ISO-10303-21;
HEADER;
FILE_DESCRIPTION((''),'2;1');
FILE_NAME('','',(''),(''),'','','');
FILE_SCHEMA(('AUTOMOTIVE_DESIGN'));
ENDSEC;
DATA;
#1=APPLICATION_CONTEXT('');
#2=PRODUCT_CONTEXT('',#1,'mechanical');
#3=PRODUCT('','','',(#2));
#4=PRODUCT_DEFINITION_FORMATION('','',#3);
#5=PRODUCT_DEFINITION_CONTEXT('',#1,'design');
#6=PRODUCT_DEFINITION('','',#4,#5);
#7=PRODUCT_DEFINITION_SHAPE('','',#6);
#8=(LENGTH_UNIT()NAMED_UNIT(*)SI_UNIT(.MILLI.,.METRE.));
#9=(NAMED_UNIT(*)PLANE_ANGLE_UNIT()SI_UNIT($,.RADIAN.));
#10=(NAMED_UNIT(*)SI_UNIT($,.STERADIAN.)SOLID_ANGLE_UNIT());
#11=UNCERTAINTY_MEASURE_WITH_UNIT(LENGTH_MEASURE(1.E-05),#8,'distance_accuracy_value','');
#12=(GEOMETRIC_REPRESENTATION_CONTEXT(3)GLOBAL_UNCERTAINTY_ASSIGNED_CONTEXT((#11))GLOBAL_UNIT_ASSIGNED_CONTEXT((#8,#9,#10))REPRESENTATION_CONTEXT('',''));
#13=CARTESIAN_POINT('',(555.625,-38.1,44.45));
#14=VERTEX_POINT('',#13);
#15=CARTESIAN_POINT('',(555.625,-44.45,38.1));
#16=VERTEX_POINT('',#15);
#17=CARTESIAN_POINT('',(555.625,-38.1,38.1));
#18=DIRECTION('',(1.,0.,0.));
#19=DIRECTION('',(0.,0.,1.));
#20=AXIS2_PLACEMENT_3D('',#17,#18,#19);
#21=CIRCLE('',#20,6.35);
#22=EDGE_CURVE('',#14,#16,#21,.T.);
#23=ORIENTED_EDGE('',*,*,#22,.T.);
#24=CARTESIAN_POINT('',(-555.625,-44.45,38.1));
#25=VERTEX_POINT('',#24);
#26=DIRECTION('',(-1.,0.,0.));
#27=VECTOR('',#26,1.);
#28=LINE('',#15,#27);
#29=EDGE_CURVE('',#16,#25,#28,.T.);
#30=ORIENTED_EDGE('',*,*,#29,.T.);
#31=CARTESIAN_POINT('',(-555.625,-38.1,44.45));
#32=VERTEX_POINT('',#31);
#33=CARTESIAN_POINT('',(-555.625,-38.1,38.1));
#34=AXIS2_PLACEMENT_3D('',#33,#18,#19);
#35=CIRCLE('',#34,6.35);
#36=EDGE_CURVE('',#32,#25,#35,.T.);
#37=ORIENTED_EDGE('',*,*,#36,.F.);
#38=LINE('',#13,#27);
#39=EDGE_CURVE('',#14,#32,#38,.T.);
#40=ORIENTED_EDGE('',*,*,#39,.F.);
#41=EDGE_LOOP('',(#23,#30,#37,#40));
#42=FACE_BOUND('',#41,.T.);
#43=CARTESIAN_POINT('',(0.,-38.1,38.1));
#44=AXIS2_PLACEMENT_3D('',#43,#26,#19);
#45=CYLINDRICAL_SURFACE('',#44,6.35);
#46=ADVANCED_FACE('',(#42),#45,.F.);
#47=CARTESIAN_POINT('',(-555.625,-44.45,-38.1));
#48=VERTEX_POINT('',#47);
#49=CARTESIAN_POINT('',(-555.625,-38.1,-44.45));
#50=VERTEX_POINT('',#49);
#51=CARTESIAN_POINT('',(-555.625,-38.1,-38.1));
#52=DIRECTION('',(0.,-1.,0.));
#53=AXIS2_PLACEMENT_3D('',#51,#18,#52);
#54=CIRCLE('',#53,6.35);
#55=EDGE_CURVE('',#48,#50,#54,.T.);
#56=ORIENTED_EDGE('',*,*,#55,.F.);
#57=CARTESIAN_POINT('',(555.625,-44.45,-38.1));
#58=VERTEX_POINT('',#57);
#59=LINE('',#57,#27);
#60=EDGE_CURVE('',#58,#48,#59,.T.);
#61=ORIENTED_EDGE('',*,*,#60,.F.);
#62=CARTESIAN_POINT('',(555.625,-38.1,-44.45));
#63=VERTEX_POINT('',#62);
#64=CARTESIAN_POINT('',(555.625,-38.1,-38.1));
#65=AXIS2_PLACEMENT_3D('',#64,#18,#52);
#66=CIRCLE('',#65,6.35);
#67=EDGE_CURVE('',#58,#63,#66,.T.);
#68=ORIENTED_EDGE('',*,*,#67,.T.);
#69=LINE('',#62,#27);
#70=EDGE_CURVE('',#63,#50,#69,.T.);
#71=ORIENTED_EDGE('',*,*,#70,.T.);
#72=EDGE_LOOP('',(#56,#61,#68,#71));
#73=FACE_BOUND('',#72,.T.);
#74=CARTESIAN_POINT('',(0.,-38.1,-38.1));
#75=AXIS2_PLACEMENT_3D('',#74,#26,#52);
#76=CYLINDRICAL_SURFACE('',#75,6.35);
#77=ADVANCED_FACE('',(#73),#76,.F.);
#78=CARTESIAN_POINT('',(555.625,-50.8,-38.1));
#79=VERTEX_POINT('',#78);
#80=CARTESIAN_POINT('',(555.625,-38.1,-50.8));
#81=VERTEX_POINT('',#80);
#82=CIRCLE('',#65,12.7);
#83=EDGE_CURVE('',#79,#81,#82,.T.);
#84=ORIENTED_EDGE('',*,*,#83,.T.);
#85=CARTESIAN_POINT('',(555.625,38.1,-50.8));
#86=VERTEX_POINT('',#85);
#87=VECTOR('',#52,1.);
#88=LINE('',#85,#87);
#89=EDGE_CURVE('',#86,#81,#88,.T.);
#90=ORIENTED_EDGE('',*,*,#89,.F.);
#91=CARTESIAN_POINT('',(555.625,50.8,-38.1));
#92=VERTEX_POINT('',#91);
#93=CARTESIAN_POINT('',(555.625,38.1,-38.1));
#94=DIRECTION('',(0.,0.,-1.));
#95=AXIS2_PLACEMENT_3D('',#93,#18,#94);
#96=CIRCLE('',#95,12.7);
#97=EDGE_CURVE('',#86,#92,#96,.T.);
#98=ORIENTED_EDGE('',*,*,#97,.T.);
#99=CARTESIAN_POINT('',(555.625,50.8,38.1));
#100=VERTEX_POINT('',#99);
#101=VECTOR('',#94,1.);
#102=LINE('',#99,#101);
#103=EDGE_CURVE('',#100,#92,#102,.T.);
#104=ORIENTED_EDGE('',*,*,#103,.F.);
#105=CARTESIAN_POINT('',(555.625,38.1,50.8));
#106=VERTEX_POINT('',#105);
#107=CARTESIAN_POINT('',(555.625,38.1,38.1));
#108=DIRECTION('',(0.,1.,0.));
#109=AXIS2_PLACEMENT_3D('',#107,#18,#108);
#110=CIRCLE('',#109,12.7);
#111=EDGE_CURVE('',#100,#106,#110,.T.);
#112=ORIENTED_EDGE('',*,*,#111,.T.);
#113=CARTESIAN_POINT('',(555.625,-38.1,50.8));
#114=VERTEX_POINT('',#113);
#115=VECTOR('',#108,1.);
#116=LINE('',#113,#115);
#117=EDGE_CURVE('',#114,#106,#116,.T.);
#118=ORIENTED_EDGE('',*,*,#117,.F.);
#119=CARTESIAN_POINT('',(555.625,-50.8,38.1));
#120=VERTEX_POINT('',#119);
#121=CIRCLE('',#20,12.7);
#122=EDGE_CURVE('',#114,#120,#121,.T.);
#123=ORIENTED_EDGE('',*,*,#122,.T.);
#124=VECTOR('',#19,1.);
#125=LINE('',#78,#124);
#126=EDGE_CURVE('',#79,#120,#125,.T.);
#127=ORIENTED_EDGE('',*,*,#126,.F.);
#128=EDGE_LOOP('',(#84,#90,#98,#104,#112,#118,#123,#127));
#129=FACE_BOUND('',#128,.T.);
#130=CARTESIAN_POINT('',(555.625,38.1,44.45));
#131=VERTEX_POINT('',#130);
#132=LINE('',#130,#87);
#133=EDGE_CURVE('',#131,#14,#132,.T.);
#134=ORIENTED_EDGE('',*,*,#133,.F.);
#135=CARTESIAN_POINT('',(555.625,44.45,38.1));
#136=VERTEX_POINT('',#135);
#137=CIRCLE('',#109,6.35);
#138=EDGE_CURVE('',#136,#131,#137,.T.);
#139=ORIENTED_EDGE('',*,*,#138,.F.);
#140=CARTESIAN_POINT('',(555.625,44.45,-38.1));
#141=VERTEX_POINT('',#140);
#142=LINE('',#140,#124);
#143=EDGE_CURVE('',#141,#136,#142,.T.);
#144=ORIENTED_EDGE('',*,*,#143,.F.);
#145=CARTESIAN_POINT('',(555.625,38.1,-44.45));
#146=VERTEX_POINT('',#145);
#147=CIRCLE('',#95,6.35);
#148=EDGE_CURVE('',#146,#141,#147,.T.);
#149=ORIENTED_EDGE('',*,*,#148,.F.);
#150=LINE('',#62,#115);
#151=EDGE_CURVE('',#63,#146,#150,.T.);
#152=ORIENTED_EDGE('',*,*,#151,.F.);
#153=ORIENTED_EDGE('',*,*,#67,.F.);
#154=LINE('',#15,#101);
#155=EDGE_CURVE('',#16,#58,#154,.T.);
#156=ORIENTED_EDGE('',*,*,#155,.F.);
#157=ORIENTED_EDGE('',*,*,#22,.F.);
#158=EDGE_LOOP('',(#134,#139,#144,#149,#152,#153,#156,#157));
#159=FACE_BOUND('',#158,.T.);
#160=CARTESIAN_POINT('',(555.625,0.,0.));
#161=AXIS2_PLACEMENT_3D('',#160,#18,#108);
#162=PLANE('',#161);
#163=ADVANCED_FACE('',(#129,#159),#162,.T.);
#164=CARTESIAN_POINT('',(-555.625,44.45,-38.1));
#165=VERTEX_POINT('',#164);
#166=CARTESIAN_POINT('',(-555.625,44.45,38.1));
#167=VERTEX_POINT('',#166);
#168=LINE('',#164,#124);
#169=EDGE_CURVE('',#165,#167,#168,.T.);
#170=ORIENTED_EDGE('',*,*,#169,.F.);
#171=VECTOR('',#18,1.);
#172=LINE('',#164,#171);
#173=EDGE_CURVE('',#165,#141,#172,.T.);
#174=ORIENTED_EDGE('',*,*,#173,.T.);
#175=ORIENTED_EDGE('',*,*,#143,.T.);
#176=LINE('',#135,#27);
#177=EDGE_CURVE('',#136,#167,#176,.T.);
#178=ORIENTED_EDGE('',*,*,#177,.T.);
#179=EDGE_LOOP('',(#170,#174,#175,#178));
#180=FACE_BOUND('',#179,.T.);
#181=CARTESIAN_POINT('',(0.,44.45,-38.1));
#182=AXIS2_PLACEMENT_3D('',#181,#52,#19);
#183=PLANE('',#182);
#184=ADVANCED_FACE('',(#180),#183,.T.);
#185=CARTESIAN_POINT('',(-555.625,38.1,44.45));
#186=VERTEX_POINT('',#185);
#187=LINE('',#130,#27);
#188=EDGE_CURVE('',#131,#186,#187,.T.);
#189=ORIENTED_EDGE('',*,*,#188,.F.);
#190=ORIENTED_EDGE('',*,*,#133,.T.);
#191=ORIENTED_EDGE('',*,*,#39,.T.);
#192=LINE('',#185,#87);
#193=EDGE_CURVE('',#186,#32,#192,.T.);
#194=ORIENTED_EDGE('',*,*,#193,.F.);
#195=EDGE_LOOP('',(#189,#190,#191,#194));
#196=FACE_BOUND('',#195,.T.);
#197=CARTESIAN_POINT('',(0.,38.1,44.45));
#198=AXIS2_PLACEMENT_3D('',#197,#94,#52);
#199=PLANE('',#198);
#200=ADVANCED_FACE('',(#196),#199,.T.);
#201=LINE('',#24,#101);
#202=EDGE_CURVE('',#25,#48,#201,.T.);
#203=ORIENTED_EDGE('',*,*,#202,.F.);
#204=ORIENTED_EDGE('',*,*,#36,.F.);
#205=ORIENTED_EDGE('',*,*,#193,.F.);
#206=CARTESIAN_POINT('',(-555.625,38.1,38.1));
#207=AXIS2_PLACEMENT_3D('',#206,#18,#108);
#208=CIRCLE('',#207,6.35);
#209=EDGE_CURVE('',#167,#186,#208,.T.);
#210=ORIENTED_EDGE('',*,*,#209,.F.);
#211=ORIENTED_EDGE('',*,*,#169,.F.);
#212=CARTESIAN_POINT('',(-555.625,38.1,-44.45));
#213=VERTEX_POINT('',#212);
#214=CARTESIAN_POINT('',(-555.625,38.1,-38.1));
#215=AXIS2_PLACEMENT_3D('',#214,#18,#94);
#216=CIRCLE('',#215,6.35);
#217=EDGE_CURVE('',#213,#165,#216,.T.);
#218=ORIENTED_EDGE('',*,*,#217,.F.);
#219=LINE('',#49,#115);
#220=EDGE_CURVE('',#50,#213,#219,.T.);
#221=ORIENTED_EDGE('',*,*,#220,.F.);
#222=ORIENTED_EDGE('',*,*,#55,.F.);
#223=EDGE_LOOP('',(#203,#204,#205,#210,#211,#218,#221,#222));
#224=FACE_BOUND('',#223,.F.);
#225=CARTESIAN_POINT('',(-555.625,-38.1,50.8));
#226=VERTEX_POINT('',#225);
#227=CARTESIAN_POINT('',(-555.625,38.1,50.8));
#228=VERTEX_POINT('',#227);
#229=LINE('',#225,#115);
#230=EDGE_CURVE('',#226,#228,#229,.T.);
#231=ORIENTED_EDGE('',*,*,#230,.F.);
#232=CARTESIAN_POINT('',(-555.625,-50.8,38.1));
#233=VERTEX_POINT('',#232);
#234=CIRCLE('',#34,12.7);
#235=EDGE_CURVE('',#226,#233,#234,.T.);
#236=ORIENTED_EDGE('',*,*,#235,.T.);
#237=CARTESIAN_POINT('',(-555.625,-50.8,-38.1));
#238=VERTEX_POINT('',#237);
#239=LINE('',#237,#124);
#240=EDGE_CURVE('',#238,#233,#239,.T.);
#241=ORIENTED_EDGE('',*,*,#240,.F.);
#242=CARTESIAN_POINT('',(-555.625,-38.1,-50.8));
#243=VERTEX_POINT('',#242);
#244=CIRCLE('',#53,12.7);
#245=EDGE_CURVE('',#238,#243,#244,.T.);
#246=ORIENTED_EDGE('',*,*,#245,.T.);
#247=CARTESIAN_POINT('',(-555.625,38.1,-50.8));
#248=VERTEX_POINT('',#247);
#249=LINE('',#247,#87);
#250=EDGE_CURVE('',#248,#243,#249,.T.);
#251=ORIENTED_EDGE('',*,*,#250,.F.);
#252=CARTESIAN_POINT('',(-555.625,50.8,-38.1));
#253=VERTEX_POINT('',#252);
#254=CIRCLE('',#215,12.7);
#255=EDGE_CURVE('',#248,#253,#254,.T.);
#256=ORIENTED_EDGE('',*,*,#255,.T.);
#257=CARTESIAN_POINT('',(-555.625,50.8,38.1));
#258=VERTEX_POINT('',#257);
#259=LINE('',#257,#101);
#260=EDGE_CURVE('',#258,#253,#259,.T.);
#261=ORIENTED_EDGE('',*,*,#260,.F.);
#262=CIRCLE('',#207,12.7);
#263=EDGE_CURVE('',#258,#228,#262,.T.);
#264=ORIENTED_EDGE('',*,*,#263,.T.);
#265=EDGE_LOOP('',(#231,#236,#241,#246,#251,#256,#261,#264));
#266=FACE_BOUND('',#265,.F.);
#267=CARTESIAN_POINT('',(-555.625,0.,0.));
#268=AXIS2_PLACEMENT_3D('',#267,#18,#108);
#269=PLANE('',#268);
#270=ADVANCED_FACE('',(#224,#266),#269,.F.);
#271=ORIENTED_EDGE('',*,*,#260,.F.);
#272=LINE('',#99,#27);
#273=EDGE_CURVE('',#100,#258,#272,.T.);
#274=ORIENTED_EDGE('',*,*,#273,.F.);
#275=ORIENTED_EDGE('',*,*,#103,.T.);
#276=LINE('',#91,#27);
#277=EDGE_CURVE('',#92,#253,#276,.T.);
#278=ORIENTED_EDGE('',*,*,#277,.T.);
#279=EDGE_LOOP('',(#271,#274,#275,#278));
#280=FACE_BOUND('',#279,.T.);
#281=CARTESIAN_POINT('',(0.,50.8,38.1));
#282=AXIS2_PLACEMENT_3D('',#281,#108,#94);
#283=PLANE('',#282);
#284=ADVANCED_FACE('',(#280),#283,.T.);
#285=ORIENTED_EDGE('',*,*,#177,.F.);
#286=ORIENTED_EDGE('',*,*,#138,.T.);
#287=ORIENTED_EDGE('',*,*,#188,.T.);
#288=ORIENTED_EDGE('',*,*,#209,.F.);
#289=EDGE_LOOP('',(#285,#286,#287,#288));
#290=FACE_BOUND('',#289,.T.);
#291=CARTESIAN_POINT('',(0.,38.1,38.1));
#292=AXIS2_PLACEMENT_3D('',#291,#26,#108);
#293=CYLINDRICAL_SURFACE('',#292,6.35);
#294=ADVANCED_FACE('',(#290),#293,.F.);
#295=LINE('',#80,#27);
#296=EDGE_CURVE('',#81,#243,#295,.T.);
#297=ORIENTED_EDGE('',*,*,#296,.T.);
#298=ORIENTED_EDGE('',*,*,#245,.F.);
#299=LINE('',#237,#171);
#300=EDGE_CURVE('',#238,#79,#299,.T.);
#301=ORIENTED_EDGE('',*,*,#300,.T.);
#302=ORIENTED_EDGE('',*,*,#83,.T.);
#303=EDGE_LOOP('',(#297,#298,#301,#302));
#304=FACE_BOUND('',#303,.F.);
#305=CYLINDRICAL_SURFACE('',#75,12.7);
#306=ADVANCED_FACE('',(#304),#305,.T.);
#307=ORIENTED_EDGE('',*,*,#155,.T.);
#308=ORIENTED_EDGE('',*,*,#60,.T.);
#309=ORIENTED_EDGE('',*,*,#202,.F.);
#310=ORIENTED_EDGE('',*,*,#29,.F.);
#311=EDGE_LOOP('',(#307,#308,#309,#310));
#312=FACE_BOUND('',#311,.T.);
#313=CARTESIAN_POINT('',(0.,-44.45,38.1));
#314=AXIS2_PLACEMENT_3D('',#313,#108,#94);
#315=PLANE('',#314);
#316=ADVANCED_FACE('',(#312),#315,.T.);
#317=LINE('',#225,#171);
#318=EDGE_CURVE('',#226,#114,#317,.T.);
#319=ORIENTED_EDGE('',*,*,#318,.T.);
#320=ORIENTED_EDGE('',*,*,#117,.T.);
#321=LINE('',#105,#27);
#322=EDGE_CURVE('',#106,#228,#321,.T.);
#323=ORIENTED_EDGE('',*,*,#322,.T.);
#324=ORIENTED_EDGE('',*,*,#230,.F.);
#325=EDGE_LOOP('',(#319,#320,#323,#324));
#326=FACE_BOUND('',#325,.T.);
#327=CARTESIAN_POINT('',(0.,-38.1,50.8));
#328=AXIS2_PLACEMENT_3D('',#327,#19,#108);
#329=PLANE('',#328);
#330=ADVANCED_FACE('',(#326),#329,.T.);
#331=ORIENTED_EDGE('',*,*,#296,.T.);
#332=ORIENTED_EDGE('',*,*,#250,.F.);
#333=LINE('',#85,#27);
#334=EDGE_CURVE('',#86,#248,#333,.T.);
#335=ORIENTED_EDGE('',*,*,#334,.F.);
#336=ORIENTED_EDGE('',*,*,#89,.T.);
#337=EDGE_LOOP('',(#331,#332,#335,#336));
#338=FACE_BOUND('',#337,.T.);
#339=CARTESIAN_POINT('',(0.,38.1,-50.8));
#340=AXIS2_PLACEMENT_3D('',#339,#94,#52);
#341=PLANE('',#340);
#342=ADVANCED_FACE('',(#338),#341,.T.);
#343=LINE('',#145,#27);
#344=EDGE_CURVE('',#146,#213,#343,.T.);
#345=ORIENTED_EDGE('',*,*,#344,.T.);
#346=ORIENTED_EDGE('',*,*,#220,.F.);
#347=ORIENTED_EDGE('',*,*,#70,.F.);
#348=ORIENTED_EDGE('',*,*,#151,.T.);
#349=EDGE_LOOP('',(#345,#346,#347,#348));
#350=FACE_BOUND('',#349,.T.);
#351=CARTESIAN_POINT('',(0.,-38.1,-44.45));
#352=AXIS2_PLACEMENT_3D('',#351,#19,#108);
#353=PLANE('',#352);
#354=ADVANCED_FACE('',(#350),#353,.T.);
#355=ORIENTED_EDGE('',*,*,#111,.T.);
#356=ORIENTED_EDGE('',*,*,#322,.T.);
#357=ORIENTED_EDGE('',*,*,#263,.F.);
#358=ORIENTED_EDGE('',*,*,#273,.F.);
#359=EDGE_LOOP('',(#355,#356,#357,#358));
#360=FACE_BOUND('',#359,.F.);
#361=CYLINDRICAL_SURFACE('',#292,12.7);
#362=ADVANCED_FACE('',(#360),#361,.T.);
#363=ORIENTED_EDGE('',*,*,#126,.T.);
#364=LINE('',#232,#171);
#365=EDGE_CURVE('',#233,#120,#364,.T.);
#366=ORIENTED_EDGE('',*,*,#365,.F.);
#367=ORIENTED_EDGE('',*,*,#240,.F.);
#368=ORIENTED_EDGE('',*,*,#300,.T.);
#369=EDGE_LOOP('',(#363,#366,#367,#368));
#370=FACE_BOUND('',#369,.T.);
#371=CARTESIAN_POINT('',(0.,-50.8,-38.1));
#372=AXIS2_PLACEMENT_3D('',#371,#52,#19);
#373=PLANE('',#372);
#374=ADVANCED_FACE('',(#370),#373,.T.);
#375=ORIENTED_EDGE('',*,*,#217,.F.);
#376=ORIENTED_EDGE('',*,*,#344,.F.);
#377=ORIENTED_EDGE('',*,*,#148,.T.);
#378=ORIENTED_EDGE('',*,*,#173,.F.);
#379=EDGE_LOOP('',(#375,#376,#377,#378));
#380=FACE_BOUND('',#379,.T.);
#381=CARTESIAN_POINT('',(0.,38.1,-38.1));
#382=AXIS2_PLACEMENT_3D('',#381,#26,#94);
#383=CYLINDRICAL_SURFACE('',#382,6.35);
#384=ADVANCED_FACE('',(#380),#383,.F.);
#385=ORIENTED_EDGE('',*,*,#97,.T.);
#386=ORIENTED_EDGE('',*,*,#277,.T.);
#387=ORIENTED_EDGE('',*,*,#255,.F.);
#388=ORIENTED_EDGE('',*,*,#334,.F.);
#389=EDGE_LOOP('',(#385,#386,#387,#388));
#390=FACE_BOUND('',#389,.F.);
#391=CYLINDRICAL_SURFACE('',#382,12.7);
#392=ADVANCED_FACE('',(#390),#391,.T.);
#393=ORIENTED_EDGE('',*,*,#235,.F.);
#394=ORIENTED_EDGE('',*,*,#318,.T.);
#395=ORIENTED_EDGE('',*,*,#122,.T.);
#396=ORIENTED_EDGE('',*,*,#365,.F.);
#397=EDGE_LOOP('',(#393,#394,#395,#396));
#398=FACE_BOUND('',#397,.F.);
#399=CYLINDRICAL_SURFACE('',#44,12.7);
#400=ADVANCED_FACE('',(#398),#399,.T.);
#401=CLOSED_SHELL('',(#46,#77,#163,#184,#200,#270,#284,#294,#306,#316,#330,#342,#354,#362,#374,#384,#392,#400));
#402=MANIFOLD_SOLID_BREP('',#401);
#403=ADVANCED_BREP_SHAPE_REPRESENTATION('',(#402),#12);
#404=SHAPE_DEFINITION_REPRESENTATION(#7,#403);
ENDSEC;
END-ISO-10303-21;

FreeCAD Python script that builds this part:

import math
import FreeCAD as App
import Part
import Sketcher
Q = App.Units.Quantity

doc = App.newDocument("Part")
body = doc.addObject("PartDesign::Body", "Body")

sketch1 = body.newObject("Sketcher::SketchObject", "Sketch")
sketch1.AttachmentSupport = (doc.getObject("YZ_Plane"), [""])
sketch1.MapMode = "FlatFace"
sketch1.addGeometry([
    Part.LineSegment(App.Vector(38, 51, 0), App.Vector(-38, 51, 0)),
    Part.ArcOfCircle(Part.Circle(App.Vector(-38, 38, 0), App.Vector(0, 0, 1), 13), math.radians(90), math.radians(180)),
    Part.LineSegment(App.Vector(-51, 38, 0), App.Vector(-51, -38, 0)),
    Part.ArcOfCircle(Part.Circle(App.Vector(-38, -38, 0), App.Vector(0, 0, 1), 13), math.radians(180), math.radians(270)),
    Part.LineSegment(App.Vector(-38, -51, 0), App.Vector(38, -51, 0)),
    Part.ArcOfCircle(Part.Circle(App.Vector(38, -38, 0), App.Vector(0, 0, 1), 13), math.radians(-90), math.radians(0)),
    Part.LineSegment(App.Vector(51, -38, 0), App.Vector(51, 38, 0)),
    Part.ArcOfCircle(Part.Circle(App.Vector(38, 38, 0), App.Vector(0, 0, 1), 13), math.radians(0), math.radians(90)),
    Part.LineSegment(App.Vector(44, 38, 0), App.Vector(44, -38, 0)),
    Part.ArcOfCircle(Part.Circle(App.Vector(38, -38, 0), App.Vector(0, 0, 1), 6), math.radians(-90), math.radians(0)),
    Part.LineSegment(App.Vector(38, -44, 0), App.Vector(-38, -44, 0)),
    Part.ArcOfCircle(Part.Circle(App.Vector(-38, -38, 0), App.Vector(0, 0, 1), 6), math.radians(180), math.radians(270)),
    Part.LineSegment(App.Vector(-44, -38, 0), App.Vector(-44, 38, 0)),
    Part.ArcOfCircle(Part.Circle(App.Vector(-38, 38, 0), App.Vector(0, 0, 1), 6), math.radians(90), math.radians(180)),
    Part.LineSegment(App.Vector(-38, 44, 0), App.Vector(38, 44, 0)),
    Part.ArcOfCircle(Part.Circle(App.Vector(38, 38, 0), App.Vector(0, 0, 1), 6), math.radians(0), math.radians(90)),
], False)
sketch1.addConstraint([
    Sketcher.Constraint("Tangent", 0, 2, 1, 1),
    Sketcher.Constraint("Tangent", 1, 2, 2, 1),
    Sketcher.Constraint("Tangent", 2, 2, 3, 1),
    Sketcher.Constraint("Tangent", 3, 2, 4, 1),
    Sketcher.Constraint("Tangent", 4, 2, 5, 1),
    Sketcher.Constraint("Tangent", 5, 2, 6, 1),
    Sketcher.Constraint("Tangent", 6, 2, 7, 1),
    Sketcher.Constraint("Tangent", 7, 2, 0, 1),
    Sketcher.Constraint("Tangent", 8, 2, 9, 2),
    Sketcher.Constraint("Tangent", 9, 1, 10, 1),
    Sketcher.Constraint("Tangent", 10, 2, 11, 2),
    Sketcher.Constraint("Tangent", 11, 1, 12, 1),
    Sketcher.Constraint("Tangent", 12, 2, 13, 2),
    Sketcher.Constraint("Tangent", 13, 1, 14, 1),
    Sketcher.Constraint("Tangent", 14, 2, 15, 2),
    Sketcher.Constraint("Tangent", 15, 1, 8, 1),
    Sketcher.Constraint("Horizontal", 0),
    Sketcher.Constraint("Vertical", 2),
    Sketcher.Constraint("Horizontal", 4),
    Sketcher.Constraint("Vertical", 6),
    Sketcher.Constraint("Vertical", 8),
    Sketcher.Constraint("Horizontal", 10),
    Sketcher.Constraint("Vertical", 12),
    Sketcher.Constraint("Horizontal", 14),
    Sketcher.Constraint("Coincident", 9, 3, 5, 3),
    Sketcher.Constraint("Coincident", 11, 3, 3, 3),
    Sketcher.Constraint("Coincident", 13, 3, 1, 3),
    Sketcher.Constraint("Equal", 1, 3),
    Sketcher.Constraint("Equal", 3, 5),
    Sketcher.Constraint("Equal", 5, 7),
    Sketcher.Constraint("Equal", 13, 15),
    Sketcher.Constraint("Symmetric", 1, 3, 5, 3, -1, 1),
    Sketcher.Constraint("Equal", 14, 2),
    Sketcher.Constraint("Radius", 1, Q("0.5 in")),
    Sketcher.Constraint("Radius", 9, Q("0.25 in")),
    Sketcher.Constraint("DistanceX", 0, 2, 0, 1, Q("3 in")),
])
pad1 = body.newObject("PartDesign::Pad", "Pad")
pad1.Profile = sketch1
pad1.Length = Q("43.75 in")
pad1.Midplane = True

doc.recompute()
